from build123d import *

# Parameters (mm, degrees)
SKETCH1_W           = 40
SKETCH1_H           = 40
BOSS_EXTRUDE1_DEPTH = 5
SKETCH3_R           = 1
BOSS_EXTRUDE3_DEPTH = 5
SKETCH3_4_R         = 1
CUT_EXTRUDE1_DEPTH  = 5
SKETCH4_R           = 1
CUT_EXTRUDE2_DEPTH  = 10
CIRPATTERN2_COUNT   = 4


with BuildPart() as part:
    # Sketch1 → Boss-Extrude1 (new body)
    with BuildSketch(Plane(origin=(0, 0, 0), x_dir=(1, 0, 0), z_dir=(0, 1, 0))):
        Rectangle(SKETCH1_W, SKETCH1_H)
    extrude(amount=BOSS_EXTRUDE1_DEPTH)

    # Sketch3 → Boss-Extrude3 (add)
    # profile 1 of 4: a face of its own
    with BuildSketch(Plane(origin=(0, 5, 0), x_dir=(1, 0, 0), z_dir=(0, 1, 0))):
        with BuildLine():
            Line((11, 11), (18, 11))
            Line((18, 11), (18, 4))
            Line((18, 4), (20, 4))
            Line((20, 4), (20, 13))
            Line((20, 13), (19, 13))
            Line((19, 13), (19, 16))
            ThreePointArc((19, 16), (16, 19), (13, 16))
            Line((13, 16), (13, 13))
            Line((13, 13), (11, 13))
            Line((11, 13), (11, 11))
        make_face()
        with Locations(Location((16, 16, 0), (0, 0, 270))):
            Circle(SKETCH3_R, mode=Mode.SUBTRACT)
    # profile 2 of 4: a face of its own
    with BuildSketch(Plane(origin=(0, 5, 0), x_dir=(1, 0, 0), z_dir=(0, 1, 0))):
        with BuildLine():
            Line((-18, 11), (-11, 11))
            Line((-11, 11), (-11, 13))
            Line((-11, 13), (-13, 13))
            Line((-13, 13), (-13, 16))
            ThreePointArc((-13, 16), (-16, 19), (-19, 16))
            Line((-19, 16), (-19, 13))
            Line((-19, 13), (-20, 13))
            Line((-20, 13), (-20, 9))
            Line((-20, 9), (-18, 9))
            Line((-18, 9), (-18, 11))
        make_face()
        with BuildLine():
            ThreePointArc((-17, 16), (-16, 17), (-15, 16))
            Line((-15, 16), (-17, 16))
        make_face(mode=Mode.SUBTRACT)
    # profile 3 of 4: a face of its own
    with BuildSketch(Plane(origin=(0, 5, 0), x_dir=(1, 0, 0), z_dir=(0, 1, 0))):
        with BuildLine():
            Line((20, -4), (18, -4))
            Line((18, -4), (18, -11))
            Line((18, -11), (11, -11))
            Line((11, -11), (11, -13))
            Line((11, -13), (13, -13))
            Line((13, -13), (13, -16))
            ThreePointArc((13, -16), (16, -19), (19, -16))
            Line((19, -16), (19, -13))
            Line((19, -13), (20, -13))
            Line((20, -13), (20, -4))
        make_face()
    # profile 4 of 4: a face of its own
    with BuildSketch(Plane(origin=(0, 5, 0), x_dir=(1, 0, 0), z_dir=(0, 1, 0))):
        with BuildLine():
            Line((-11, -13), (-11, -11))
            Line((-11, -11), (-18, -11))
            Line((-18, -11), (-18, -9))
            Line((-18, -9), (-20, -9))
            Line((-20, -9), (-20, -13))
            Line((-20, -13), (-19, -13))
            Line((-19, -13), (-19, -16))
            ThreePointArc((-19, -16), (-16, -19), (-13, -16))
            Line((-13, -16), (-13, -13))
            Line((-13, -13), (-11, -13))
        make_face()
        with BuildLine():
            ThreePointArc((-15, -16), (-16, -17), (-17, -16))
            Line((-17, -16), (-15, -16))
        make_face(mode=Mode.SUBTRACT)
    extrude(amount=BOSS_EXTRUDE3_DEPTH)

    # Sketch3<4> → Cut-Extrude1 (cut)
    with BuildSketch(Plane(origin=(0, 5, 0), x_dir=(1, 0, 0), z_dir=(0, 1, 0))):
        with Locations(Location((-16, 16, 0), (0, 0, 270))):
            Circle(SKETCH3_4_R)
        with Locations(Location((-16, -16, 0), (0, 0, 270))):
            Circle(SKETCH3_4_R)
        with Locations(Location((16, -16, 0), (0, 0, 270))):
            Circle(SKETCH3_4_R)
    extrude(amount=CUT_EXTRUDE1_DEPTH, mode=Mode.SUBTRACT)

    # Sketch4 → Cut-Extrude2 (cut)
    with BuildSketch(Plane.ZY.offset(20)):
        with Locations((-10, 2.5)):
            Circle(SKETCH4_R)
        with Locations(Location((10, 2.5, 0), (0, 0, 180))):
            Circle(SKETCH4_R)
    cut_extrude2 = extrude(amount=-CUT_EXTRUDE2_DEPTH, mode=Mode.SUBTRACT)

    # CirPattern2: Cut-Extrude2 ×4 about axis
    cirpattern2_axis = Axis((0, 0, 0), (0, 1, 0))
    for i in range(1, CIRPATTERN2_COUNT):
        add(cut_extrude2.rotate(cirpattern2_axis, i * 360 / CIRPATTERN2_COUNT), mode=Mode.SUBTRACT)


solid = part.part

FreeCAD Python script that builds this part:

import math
import FreeCAD as App
import Part
import Sketcher

V = App.Vector


def add_polygon(sketch, points):
    """Adds a closed chain of lines whose ends are joined by coincident constraints."""
    first, n = sketch.GeometryCount, len(points)
    for a, b in zip(points, points[1:] + points[:1]):
        sketch.addGeometry(Part.LineSegment(App.Vector(*a, 0), App.Vector(*b, 0)), False)
    for i in range(n):
        sketch.addConstraint(Sketcher.Constraint("Coincident", first + i, 2, first + (i + 1) % n, 1))

doc = App.newDocument("Part")
body = doc.addObject("PartDesign::Body", "Body")

# Sketch on XZ plane
sketch1 = body.newObject("Sketcher::SketchObject", "Sketch")
sketch1.AttachmentSupport = (doc.getObject("XZ_Plane"), [""])
sketch1.MapMode = "FlatFace"
add_polygon(sketch1, [(-20, -20), (-20, 20), (20, 20), (20, -20)])  # lines 0-3
sketch1.addConstraint([
    Sketcher.Constraint("Vertical", 0),
    Sketcher.Constraint("Horizontal", 1),
    Sketcher.Constraint("Vertical", 2),
    Sketcher.Constraint("Horizontal", 3),
    Sketcher.Constraint("Symmetric", 0, 2, 2, 2, -1, 1),
    Sketcher.Constraint("Equal", 3, 0),
    Sketcher.Constraint("DistanceX", 1, 1, 1, 2, 40.0),
])
pad1 = body.newObject("PartDesign::Pad", "Pad")
pad1.Profile = sketch1
pad1.Length = 5
pad1.Reversed = True

# Sketch on XZ plane
sketch2 = body.newObject("Sketcher::SketchObject", "Sketch001")
sketch2.AttachmentSupport = (doc.getObject("XZ_Plane"), [""])
sketch2.MapMode = "FlatFace"
sketch2.AttachmentOffset = App.Placement(V(0, 0, -5), App.Rotation())
sketch2.addGeometry([
    Part.LineSegment(V(11, -11, 0), V(18, -11, 0)),  # 0
    Part.LineSegment(V(18, -11, 0), V(18, -4, 0)),  # 1
    Part.LineSegment(V(18, -4, 0), V(20, -4, 0)),  # 2
    Part.LineSegment(V(20, -4, 0), V(20, -13, 0)),  # 3
    Part.LineSegment(V(20, -13, 0), V(19, -13, 0)),  # 4
    Part.LineSegment(V(19, -13, 0), V(19, -16, 0)),  # 5
    Part.ArcOfCircle(Part.Circle(V(16, -16, 0), V(0, 0, 1), 3), math.radians(180), math.radians(360)),  # 6
    Part.LineSegment(V(13, -16, 0), V(13, -13, 0)),  # 7
    Part.LineSegment(V(13, -13, 0), V(11, -13, 0)),  # 8
    Part.LineSegment(V(11, -13, 0), V(11, -11, 0)),  # 9
    Part.Circle(V(16, -16, 0), V(0, 0, 1), 1),  # 10
    Part.LineSegment(V(-18, -11, 0), V(-11, -11, 0)),  # 11
    Part.LineSegment(V(-11, -11, 0), V(-11, -13, 0)),  # 12
    Part.LineSegment(V(-11, -13, 0), V(-13, -13, 0)),  # 13
    Part.LineSegment(V(-13, -13, 0), V(-13, -16, 0)),  # 14
    Part.ArcOfCircle(Part.Circle(V(-16, -16, 0), V(0, 0, 1), 3), math.radians(180), math.radians(360)),  # 15
    Part.LineSegment(V(-19, -16, 0), V(-19, -13, 0)),  # 16
    Part.LineSegment(V(-19, -13, 0), V(-20, -13, 0)),  # 17
    Part.LineSegment(V(-20, -13, 0), V(-20, -9, 0)),  # 18
    Part.LineSegment(V(-20, -9, 0), V(-18, -9, 0)),  # 19
    Part.LineSegment(V(-18, -9, 0), V(-18, -11, 0)),  # 20
    Part.LineSegment(V(-15, -16, 0), V(-17, -16, 0)),  # 21
    Part.ArcOfCircle(Part.Circle(V(-16, -16, 0), V(0, 0, 1), 1), math.radians(180), math.radians(360)),  # 22
    Part.LineSegment(V(20, 4, 0), V(18, 4, 0)),  # 23
    Part.LineSegment(V(18, 4, 0), V(18, 11, 0)),  # 24
    Part.LineSegment(V(18, 11, 0), V(11, 11, 0)),  # 25
    Part.LineSegment(V(11, 11, 0), V(11, 13, 0)),  # 26
    Part.LineSegment(V(11, 13, 0), V(13, 13, 0)),  # 27
    Part.LineSegment(V(13, 13, 0), V(13, 16, 0)),  # 28
    Part.ArcOfCircle(Part.Circle(V(16, 16, 0), V(0, 0, 1), 3), math.radians(0), math.radians(180)),  # 29
    Part.LineSegment(V(19, 16, 0), V(19, 13, 0)),  # 30
    Part.LineSegment(V(19, 13, 0), V(20, 13, 0)),  # 31
    Part.LineSegment(V(20, 13, 0), V(20, 4, 0)),  # 32
    Part.LineSegment(V(-11, 13, 0), V(-11, 11, 0)),  # 33
    Part.LineSegment(V(-11, 11, 0), V(-18, 11, 0)),  # 34
    Part.LineSegment(V(-18, 11, 0), V(-18, 9, 0)),  # 35
    Part.LineSegment(V(-18, 9, 0), V(-20, 9, 0)),  # 36
    Part.LineSegment(V(-20, 9, 0), V(-20, 13, 0)),  # 37
    Part.LineSegment(V(-20, 13, 0), V(-19, 13, 0)),  # 38
    Part.LineSegment(V(-19, 13, 0), V(-19, 16, 0)),  # 39
    Part.ArcOfCircle(Part.Circle(V(-16, 16, 0), V(0, 0, 1), 3), math.radians(0), math.radians(180)),  # 40
    Part.LineSegment(V(-13, 16, 0), V(-13, 13, 0)),  # 41
    Part.LineSegment(V(-13, 13, 0), V(-11, 13, 0)),  # 42
    Part.LineSegment(V(-17, 16, 0), V(-15, 16, 0)),  # 43
    Part.ArcOfCircle(Part.Circle(V(-16, 16, 0), V(0, 0, 1), 1), math.radians(0), math.radians(180)),  # 44
], False)
sketch2.addConstraint([
    Sketcher.Constraint("Coincident", 0, 2, 1, 1),
    Sketcher.Constraint("Coincident", 1, 2, 2, 1),
    Sketcher.Constraint("Coincident", 2, 2, 3, 1),
    Sketcher.Constraint("Coincident", 3, 2, 4, 1),
    Sketcher.Constraint("Coincident", 4, 2, 5, 1),
    Sketcher.Constraint("Tangent", 5, 2, 6, 2),
    Sketcher.Constraint("Tangent", 6, 1, 7, 1),
    Sketcher.Constraint("Coincident", 7, 2, 8, 1),
    Sketcher.Constraint("Coincident", 8, 2, 9, 1),
    Sketcher.Constraint("Coincident", 9, 2, 0, 1),
    Sketcher.Constraint("Coincident", 11, 2, 12, 1),
    Sketcher.Constraint("Coincident", 12, 2, 13, 1),
    Sketcher.Constraint("Coincident", 13, 2, 14, 1),
    Sketcher.Constraint("Tangent", 14, 2, 15, 2),
    Sketcher.Constraint("Tangent", 15, 1, 16, 1),
    Sketcher.Constraint("Coincident", 16, 2, 17, 1),
    Sketcher.Constraint("Coincident", 17, 2, 18, 1),
    Sketcher.Constraint("Coincident", 18, 2, 19, 1),
    Sketcher.Constraint("Coincident", 19, 2, 20, 1),
    Sketcher.Constraint("Coincident", 20, 2, 11, 1),
    Sketcher.Constraint("Coincident", 21, 1, 22, 2),
    Sketcher.Constraint("Coincident", 22, 1, 21, 2),
    Sketcher.Constraint("Coincident", 23, 2, 24, 1),
    Sketcher.Constraint("Coincident", 24, 2, 25, 1),
    Sketcher.Constraint("Coincident", 25, 2, 26, 1),
    Sketcher.Constraint("Coincident", 26, 2, 27, 1),
    Sketcher.Constraint("Coincident", 27, 2, 28, 1),
    Sketcher.Constraint("Tangent", 28, 2, 29, 2),
    Sketcher.Constraint("Tangent", 29, 1, 30, 1),
    Sketcher.Constraint("Coincident", 30, 2, 31, 1),
    Sketcher.Constraint("Coincident", 31, 2, 32, 1),
    Sketcher.Constraint("Coincident", 32, 2, 23, 1),
    Sketcher.Constraint("Coincident", 33, 2, 34, 1),
    Sketcher.Constraint("Coincident", 34, 2, 35, 1),
    Sketcher.Constraint("Coincident", 35, 2, 36, 1),
    Sketcher.Constraint("Coincident", 36, 2, 37, 1),
    Sketcher.Constraint("Coincident", 37, 2, 38, 1),
    Sketcher.Constraint("Coincident", 38, 2, 39, 1),
    Sketcher.Constraint("Tangent", 39, 2, 40, 2),
    Sketcher.Constraint("Tangent", 40, 1, 41, 1),
    Sketcher.Constraint("Coincident", 41, 2, 42, 1),
    Sketcher.Constraint("Coincident", 42, 2, 33, 1),
    Sketcher.Constraint("Coincident", 43, 1, 44, 2),
    Sketcher.Constraint("Coincident", 44, 1, 43, 2),
    Sketcher.Constraint("Horizontal", 0),
    Sketcher.Constraint("Vertical", 1),
    Sketcher.Constraint("Horizontal", 2),
    Sketcher.Constraint("Vertical", 3),
    Sketcher.Constraint("Horizontal", 4),
    Sketcher.Constraint("Vertical", 5),
    Sketcher.Constraint("Vertical", 7),
    Sketcher.Constraint("Horizontal", 8),
    Sketcher.Constraint("Vertical", 9),
    Sketcher.Constraint("Horizontal", 11),
    Sketcher.Constraint("Vertical", 12),
    Sketcher.Constraint("Horizontal", 13),
    Sketcher.Constraint("Vertical", 14),
    Sketcher.Constraint("Vertical", 16),
    Sketcher.Constraint("Horizontal", 17),
    Sketcher.Constraint("Vertical", 18),
    Sketcher.Constraint("Horizontal", 19),
    Sketcher.Constraint("Vertical", 20),
    Sketcher.Constraint("Horizontal", 21),
    Sketcher.Constraint("Horizontal", 23),
    Sketcher.Constraint("Vertical", 24),
    Sketcher.Constraint("Horizontal", 25),
    Sketcher.Constraint("Vertical", 26),
    Sketcher.Constraint("Horizontal", 27),
    Sketcher.Constraint("Vertical", 28),
    Sketcher.Constraint("Vertical", 30),
    Sketcher.Constraint("Horizontal", 31),
    Sketcher.Constraint("Vertical", 32),
    Sketcher.Constraint("Vertical", 33),
    Sketcher.Constraint("Horizontal", 34),
    Sketcher.Constraint("Vertical", 35),
    Sketcher.Constraint("Horizontal", 36),
    Sketcher.Constraint("Vertical", 37),
    Sketcher.Constraint("Horizontal", 38),
    Sketcher.Constraint("Vertical", 39),
    Sketcher.Constraint("Vertical", 41),
    Sketcher.Constraint("Horizontal", 42),
    Sketcher.Constraint("Horizontal", 43),
    Sketcher.Constraint("Coincident", 10, 3, 6, 3),
    Sketcher.Constraint("Coincident", 22, 3, 15, 3),
    Sketcher.Constraint("Coincident", 44, 3, 40, 3),
    Sketcher.Constraint("Equal", 6, 15),
    Sketcher.Constraint("Equal", 10, 22),
    Sketcher.Constraint("Equal", 15, 29),
    Sketcher.Constraint("Equal", 29, 40),
    Sketcher.Constraint("Equal", 22, 44),
    Sketcher.Constraint("Symmetric", 15, 3, 29, 3, -1, 1),
    Sketcher.Constraint("Symmetric", 6, 3, 40, 3, -1, 1),
    Sketcher.Constraint("Symmetric", 20, 2, 24, 2, -1, 1),
    Sketcher.Constraint("Symmetric", 12, 2, 26, 2, -1, 1),
    Sketcher.Constraint("Symmetric", 17, 2, 31, 2, -1, 1),
    Sketcher.Constraint("Symmetric", 9, 2, 33, 2, -1, 1),
    Sketcher.Constraint("Symmetric", 3, 2, 37, 2, -1, 1),
    Sketcher.Constraint("Symmetric", 6, 3, 15, 3, -2),
    Sketcher.Constraint("Symmetric", 9, 2, 11, 2, -2),
    Sketcher.Constraint("Symmetric", 3, 2, 17, 2, -2),
    Sketcher.Constraint("Symmetric", 1, 2, 23, 2, -1),
    Sketcher.Constraint("Symmetric", 19, 2, 35, 2, -1),
    Sketcher.Constraint("Horizontal", 4, 2, 7, 2),
    Sketcher.Constraint("Horizontal", 8, 2, 12, 2),
    Sketcher.Constraint("Horizontal", 15, 1, 21, 1),
    Sketcher.Constraint("Horizontal", 38, 2, 41, 2),
    Sketcher.Constraint("Horizontal", 40, 1, 43, 1),
    Sketcher.Constraint("Equal", 2, 8),
    Sketcher.Constraint("Equal", 19, 21),
    Sketcher.Constraint("Equal", 34, 1),
    Sketcher.Constraint("Equal", 43, 9),
    Sketcher.Constraint("Equal", 12, 20),
    Sketcher.Constraint("Diameter", 10, 2.0),
    Sketcher.Constraint("Radius", 6, 3.0),
    Sketcher.Constraint("DistanceX", 0, 1, 0, 2, 7.0),
    Sketcher.Constraint("DistanceY", 5, 2, 5, 1, 3.0),
    Sketcher.Constraint("DistanceX", -1, 1, 6, 3, 16.0),
    Sketcher.Constraint("DistanceY", 6, 3, -1, 1, 16.0),
])
pad2 = body.newObject("PartDesign::Pad", "Pad001")
pad2.Profile = sketch2
pad2.Length = 5
pad2.Reversed = True

# Sketch on XZ plane
sketch3 = body.newObject("Sketcher::SketchObject", "Sketch002")
sketch3.AttachmentSupport = (doc.getObject("XZ_Plane"), [""])
sketch3.MapMode = "FlatFace"
sketch3.AttachmentOffset = App.Placement(V(0, 0, -5), App.Rotation())
sketch3.addGeometry([
    Part.Circle(V(-16, -16, 0), V(0, 0, 1), 1),
    Part.Circle(V(-16, 16, 0), V(0, 0, 1), 1),
    Part.Circle(V(16, 16, 0), V(0, 0, 1), 1),
], False)
sketch3.addConstraint([
    Sketcher.Constraint("Equal", 0, 1),
    Sketcher.Constraint("Equal", 1, 2),
    Sketcher.Constraint("Symmetric", 0, 3, 2, 3, -1, 1),
    Sketcher.Constraint("Symmetric", 1, 3, 2, 3, -2),
    Sketcher.Constraint("Diameter", 0, 2.0),
    Sketcher.Constraint("DistanceX", 0, 3, -1, 1, 16.0),
    Sketcher.Constraint("DistanceY", 0, 3, -1, 1, 16.0),
])
pocket1 = body.newObject("PartDesign::Pocket", "Pocket")
pocket1.Profile = sketch3
pocket1.Length = 5

# Sketch on YZ plane
sketch4 = body.newObject("Sketcher::SketchObject", "Sketch003")
sketch4.AttachmentSupport = (doc.getObject("YZ_Plane"), [""])
sketch4.MapMode = "FlatFace"
sketch4.AttachmentOffset = App.Placement(V(0, 0, -20), App.Rotation())
sketch4.addGeometry([
    Part.Circle(V(2.5, -10, 0), V(0, 0, 1), 1),
    Part.Circle(V(2.5, 10, 0), V(0, 0, 1), 1),
], False)
sketch4.addConstraint([
    Sketcher.Constraint("Equal", 0, 1),
    Sketcher.Constraint("Symmetric", 0, 3, 1, 3, -1),
    Sketcher.Constraint("Diameter", 0, 2.0),
    Sketcher.Constraint("DistanceY", 0, 3, -1, 1, 10.0),
    Sketcher.Constraint("DistanceX", -1, 1, 0, 3, 2.5),
])
pocket2 = body.newObject("PartDesign::Pocket", "Pocket001")
pocket2.Profile = sketch4
pocket2.Length = 10
pocket2.Reversed = True
doc.recompute()

polarpattern = body.newObject("PartDesign::PolarPattern", "PolarPattern")
polarpattern.Originals = [pocket2]
polarpattern.Axis = (doc.getObject("Y_Axis"), [""])
polarpattern.Angle = 360
polarpattern.Occurrences = 4
body.Tip = polarpattern

doc.recompute()
